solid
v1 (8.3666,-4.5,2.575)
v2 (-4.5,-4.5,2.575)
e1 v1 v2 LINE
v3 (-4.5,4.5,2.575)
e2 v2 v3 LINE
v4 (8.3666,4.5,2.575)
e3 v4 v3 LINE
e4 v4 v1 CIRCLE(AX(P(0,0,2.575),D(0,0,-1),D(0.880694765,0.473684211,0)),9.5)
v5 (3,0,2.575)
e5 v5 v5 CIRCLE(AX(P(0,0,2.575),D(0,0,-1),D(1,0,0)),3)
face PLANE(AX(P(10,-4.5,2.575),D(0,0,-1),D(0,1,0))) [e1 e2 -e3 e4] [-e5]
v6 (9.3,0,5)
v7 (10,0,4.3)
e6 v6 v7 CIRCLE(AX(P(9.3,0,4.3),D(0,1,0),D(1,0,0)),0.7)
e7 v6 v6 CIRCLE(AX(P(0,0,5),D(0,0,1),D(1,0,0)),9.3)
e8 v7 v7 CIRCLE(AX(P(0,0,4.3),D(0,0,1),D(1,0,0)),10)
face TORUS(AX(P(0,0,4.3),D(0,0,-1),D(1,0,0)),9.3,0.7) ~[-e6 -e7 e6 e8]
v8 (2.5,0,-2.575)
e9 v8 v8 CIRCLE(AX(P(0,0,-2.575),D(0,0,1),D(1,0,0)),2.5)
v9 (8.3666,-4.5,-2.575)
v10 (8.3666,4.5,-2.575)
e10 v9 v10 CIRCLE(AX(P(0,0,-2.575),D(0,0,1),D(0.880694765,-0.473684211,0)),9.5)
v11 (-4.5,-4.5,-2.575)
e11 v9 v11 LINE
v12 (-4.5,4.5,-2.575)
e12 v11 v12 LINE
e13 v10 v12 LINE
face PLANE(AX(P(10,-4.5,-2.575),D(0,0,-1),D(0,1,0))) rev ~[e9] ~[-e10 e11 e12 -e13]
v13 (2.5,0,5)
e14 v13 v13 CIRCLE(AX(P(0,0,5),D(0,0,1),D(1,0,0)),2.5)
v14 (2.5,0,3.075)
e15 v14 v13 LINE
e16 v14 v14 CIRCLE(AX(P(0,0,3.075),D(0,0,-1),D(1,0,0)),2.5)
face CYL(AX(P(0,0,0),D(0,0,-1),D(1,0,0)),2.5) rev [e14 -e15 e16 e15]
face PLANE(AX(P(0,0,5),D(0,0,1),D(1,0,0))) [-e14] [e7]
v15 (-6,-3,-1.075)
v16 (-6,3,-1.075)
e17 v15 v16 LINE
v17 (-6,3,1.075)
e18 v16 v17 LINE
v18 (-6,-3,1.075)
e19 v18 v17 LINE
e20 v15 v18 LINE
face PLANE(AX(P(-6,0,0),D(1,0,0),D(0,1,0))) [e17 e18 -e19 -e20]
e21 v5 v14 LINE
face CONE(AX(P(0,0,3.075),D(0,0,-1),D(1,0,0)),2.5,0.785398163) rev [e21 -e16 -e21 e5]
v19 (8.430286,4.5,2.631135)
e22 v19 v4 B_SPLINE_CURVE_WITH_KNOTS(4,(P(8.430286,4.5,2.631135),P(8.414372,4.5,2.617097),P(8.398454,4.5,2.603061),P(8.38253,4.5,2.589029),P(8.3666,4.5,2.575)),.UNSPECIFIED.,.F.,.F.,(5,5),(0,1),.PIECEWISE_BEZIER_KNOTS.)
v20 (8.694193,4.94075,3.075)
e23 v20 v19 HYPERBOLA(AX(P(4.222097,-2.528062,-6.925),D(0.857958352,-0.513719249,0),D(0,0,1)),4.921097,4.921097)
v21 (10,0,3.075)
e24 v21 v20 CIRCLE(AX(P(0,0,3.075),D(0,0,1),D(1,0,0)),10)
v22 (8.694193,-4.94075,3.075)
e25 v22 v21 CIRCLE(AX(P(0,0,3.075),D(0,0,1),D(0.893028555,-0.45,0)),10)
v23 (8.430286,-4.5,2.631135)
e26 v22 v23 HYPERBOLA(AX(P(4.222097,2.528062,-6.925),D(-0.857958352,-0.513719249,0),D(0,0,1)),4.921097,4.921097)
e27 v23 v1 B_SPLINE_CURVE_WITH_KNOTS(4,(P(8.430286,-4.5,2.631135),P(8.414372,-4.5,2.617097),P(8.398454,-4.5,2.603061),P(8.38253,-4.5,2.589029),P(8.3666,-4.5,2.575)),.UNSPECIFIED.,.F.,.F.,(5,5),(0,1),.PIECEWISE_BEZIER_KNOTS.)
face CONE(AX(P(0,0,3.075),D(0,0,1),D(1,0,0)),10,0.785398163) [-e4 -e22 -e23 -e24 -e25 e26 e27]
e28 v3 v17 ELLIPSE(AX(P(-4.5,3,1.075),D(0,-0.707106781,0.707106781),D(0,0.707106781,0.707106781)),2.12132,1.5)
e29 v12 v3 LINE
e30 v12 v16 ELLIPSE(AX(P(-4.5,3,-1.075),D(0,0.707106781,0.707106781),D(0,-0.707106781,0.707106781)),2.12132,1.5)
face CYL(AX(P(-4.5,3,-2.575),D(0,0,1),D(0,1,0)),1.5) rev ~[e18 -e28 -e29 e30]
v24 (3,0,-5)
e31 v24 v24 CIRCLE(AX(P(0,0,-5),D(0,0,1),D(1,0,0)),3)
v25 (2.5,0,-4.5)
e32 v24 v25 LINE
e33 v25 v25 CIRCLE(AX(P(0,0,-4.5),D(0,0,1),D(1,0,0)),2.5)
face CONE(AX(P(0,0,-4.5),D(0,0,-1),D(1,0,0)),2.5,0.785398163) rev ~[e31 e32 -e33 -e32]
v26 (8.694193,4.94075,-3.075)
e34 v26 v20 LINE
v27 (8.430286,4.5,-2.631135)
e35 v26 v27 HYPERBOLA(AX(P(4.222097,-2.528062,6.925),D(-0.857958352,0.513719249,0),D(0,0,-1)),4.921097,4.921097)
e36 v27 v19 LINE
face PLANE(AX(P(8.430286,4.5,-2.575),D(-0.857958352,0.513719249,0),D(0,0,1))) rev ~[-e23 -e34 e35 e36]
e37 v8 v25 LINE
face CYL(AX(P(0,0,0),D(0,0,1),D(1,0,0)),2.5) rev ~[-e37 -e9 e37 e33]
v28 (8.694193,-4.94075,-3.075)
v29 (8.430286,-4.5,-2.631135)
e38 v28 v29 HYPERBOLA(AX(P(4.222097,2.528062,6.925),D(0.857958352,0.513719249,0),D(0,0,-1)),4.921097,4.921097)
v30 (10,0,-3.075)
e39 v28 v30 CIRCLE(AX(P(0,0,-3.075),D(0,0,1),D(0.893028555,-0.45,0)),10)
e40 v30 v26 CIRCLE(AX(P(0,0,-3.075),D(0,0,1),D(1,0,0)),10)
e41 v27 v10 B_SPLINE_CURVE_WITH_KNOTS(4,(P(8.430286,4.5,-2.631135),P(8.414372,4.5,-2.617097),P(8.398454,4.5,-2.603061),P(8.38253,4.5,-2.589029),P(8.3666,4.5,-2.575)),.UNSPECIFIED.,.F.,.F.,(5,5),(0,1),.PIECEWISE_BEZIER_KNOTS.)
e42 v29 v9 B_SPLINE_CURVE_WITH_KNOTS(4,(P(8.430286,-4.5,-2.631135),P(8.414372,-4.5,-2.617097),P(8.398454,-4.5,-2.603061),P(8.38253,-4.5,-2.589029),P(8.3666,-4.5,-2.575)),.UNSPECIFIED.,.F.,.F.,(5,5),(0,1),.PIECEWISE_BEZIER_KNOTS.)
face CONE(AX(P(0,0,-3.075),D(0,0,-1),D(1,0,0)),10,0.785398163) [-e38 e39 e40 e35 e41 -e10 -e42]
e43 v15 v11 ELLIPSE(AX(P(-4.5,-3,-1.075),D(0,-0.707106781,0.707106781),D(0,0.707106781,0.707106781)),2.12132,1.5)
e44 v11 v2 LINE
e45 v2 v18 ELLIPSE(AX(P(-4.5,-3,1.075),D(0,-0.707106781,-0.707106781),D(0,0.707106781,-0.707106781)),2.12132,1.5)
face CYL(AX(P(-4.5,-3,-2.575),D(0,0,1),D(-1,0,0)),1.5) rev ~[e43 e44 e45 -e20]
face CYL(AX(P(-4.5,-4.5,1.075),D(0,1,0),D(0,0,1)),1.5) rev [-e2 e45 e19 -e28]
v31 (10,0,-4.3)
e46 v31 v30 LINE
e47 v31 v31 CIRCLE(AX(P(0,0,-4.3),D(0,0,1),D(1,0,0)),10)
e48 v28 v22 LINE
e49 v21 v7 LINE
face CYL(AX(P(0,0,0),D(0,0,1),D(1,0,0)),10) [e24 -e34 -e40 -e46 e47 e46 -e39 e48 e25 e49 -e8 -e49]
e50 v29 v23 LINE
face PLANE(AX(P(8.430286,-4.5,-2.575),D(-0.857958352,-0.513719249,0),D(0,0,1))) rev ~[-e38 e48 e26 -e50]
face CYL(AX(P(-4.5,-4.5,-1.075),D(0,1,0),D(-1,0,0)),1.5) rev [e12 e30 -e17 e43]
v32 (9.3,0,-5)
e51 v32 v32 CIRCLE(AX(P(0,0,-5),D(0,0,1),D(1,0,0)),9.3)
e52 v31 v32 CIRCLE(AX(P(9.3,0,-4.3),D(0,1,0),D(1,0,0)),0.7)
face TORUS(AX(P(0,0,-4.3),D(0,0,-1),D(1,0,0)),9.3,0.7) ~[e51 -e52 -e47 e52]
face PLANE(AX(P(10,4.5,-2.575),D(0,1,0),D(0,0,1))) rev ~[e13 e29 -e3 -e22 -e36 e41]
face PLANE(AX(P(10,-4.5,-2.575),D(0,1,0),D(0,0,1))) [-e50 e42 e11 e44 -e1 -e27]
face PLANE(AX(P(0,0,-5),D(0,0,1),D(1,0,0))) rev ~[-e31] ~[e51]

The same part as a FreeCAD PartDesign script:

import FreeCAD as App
import Part
import Sketcher
from FreeCAD import Vector


def edges_at(feature, points):
    """Names of the edges that pass closest to the given points."""
    edges = feature.Shape.Edges
    near = lambda p: min(range(len(edges)), key=lambda i: edges[i].distToShape(Part.Vertex(*p))[0])
    return sorted({f"Edge{near(p) + 1}" for p in points})

doc = App.newDocument("Part")
body = doc.addObject("PartDesign::Body", "Body")

sketch1 = body.newObject("Sketcher::SketchObject", "Sketch")
sketch1.AttachmentSupport = (doc.getObject("XY_Plane"), [""])
sketch1.MapMode = "FlatFace"
sketch1.addGeometry([
    Part.Circle(Vector(0, 0, 0), Vector(0, 0, 1), 10),
    Part.Circle(Vector(0, 0, 0), Vector(0, 0, 1), 2.5),
], False)
sketch1.addConstraint([
    Sketcher.Constraint("Coincident", 0, 3, -1, 1),
    Sketcher.Constraint("Coincident", 1, 3, -1, 1),
    Sketcher.Constraint("Diameter", 0, 20.0),
    Sketcher.Constraint("Diameter", 1, 5.0),
])
pad1 = body.newObject("PartDesign::Pad", "Pad")
pad1.Profile = sketch1
pad1.Type = "TwoLengths"
pad1.Length = 5
pad1.Length2 = 5

sketch2 = body.newObject("Sketcher::SketchObject", "Sketch001")
sketch2.AttachmentSupport = (doc.getObject("YZ_Plane"), [""])
sketch2.MapMode = "FlatFace"
sketch2.AttachmentOffset = App.Placement(Vector(0, 0, 10), App.Rotation())
sketch2.addGeometry([
    Part.LineSegment(Vector(-4, 3, 0), Vector(-4, -3, 0)),
    Part.LineSegment(Vector(-4, -3, 0), Vector(4, -3, 0)),
    Part.LineSegment(Vector(4, -3, 0), Vector(4, 3, 0)),
    Part.LineSegment(Vector(4, 3, 0), Vector(-4, 3, 0)),
], False)
sketch2.addConstraint([
    Sketcher.Constraint("Coincident", 0, 2, 1, 1),
    Sketcher.Constraint("Coincident", 1, 2, 2, 1),
    Sketcher.Constraint("Coincident", 2, 2, 3, 1),
    Sketcher.Constraint("Coincident", 3, 2, 0, 1),
    Sketcher.Constraint("Vertical", 0),
    Sketcher.Constraint("Horizontal", 1),
    Sketcher.Constraint("Vertical", 2),
    Sketcher.Constraint("Horizontal", 3),
    Sketcher.Constraint("Symmetric", 0, 2, 2, 2, -1, 1),
    Sketcher.Constraint("DistanceX", 1, 1, 1, 2, 9.0),
    Sketcher.Constraint("DistanceY", 0, 2, 0, 1, 5.15),
])
pocket1 = body.newObject("PartDesign::Pocket", "Pocket")
pocket1.Profile = sketch2
pocket1.Length = 16
doc.recompute()

chamfer = body.newObject("PartDesign::Chamfer", "Chamfer")
chamfer.Base = (pocket1, edges_at(pocket1, [(-2.5, 0, -5), (-2.5, 0, 2.575)]))
chamfer.Size = 0.5
doc.recompute()

fillet = body.newObject("PartDesign::Fillet", "Fillet")
fillet.Base = (chamfer, edges_at(chamfer, [
    (-6, 0, 2.575),
    (-6, 4.5, 0),
    (-6, 0, -2.575),
    (-6, -4.5, 0),
]))
fillet.Radius = 1.5
doc.recompute()

chamfer2 = body.newObject("PartDesign::Chamfer", "Chamfer001")
chamfer2.Base = (fillet, edges_at(fillet, [
    (9.729, -2.313, -2.575),
    (8.93, -4.5, 0),
    (9.729, -2.313, 2.575),
    (9.729, 2.313, 2.575),
    (8.93, 4.5, 0),
    (9.729, 2.313, -2.575),
]))
chamfer2.Size = 0.5
doc.recompute()

fillet2 = body.newObject("PartDesign::Fillet", "Fillet001")
fillet2.Base = (chamfer2, edges_at(chamfer2, [(-10, 0, 5), (-10, 0, -5)]))
fillet2.Radius = 0.7

doc.recompute()
